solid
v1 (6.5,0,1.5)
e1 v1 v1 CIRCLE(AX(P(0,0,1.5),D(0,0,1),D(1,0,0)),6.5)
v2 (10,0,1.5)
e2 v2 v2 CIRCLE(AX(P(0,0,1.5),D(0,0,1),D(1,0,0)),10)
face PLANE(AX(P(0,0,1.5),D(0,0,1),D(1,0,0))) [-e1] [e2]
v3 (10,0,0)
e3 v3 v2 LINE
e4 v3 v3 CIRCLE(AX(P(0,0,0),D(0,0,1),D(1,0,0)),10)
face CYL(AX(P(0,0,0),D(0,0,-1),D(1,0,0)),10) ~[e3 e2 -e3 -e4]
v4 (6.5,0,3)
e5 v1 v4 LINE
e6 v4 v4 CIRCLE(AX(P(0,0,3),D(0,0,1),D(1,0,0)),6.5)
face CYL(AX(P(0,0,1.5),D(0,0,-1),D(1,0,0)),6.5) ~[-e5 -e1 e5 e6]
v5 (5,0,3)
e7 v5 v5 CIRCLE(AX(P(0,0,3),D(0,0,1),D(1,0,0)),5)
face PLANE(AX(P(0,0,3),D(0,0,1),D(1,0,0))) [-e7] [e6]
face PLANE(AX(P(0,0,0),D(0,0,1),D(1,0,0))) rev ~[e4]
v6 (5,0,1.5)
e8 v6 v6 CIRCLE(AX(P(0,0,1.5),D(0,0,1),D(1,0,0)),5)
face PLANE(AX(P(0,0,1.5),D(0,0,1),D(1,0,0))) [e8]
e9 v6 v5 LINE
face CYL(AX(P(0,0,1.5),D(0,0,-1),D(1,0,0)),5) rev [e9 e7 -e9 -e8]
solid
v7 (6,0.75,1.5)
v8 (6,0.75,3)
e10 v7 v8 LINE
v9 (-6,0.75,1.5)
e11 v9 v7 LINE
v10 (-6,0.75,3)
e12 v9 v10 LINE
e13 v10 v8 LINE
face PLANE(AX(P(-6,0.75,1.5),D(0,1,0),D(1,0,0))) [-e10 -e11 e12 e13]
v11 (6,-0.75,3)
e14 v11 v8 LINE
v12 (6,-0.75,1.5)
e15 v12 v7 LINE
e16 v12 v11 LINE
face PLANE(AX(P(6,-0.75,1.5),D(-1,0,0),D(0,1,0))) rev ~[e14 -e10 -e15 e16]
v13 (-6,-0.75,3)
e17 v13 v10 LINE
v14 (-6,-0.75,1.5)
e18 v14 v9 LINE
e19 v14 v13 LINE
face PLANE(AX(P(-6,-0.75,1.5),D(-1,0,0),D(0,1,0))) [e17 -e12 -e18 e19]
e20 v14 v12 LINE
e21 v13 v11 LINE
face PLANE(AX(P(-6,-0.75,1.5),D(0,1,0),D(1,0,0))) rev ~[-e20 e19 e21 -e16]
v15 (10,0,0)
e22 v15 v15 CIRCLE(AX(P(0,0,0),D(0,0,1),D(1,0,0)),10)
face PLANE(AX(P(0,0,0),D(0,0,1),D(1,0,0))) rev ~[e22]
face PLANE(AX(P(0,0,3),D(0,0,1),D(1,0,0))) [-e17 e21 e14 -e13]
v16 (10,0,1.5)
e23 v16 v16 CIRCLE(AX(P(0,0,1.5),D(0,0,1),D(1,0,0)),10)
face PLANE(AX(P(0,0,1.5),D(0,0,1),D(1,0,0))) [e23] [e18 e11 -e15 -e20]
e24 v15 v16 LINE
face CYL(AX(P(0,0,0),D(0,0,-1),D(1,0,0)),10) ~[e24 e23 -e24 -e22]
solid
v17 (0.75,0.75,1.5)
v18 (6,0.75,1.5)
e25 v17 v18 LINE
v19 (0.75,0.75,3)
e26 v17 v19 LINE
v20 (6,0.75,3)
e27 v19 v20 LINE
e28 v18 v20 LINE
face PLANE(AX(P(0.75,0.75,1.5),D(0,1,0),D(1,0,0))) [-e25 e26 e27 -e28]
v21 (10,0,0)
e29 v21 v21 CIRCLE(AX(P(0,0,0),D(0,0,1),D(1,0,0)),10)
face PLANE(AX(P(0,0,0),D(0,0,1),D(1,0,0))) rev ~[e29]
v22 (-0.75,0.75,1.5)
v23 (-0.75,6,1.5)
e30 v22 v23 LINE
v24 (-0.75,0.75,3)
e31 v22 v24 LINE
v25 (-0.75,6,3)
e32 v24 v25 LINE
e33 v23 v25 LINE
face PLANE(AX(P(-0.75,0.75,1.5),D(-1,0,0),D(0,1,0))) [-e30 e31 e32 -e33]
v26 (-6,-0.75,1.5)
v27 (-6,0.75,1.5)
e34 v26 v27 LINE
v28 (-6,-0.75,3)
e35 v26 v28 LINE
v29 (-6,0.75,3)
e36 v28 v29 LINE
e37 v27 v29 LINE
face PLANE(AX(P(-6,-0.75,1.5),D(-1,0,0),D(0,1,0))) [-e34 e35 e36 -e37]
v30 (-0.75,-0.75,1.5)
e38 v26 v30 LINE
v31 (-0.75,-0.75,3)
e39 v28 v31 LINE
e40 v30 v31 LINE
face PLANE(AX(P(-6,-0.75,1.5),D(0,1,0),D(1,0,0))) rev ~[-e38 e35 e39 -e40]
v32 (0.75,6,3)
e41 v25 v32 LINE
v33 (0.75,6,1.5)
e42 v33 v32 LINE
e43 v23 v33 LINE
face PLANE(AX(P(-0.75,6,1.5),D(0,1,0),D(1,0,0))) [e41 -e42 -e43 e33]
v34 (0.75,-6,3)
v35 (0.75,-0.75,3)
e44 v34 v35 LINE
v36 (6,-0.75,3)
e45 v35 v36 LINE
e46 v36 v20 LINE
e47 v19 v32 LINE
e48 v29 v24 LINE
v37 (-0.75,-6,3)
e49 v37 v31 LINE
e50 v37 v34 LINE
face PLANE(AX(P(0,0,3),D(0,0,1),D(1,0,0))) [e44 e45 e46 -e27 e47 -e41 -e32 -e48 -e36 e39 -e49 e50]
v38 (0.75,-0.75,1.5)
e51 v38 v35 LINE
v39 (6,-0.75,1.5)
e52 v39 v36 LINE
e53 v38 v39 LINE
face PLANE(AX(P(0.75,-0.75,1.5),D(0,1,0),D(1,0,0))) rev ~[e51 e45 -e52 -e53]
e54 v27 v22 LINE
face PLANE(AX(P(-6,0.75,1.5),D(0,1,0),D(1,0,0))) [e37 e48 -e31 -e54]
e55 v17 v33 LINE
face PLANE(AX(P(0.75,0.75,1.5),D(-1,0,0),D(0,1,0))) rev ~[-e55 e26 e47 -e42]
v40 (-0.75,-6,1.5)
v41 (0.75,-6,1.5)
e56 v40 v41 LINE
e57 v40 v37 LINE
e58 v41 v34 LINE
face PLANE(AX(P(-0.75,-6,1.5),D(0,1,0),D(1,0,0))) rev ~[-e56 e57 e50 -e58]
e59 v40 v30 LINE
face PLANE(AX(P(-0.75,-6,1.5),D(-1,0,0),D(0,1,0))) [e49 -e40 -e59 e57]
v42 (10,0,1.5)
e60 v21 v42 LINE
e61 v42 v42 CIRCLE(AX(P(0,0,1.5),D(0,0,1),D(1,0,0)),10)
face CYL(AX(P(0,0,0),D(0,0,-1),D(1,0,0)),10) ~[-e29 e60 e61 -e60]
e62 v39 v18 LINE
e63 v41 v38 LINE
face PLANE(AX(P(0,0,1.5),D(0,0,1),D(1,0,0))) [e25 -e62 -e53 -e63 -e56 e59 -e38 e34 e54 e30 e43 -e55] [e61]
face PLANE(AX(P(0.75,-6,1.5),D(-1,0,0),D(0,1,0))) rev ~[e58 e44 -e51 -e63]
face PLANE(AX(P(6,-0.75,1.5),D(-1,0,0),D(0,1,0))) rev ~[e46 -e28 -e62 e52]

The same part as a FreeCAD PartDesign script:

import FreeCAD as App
import Part
import Sketcher

V = App.Vector

doc = App.newDocument("Part")
body = doc.addObject("PartDesign::Body", "Body")

# Sketch on XY plane
sketch1 = body.newObject("Sketcher::SketchObject", "Sketch")
sketch1.AttachmentSupport = (doc.getObject("XY_Plane"), [""])
sketch1.MapMode = "FlatFace"
sketch1.addGeometry(Part.Circle(V(0, 0, 0), V(0, 0, 1), 10), False)
sketch1.addConstraint([
    Sketcher.Constraint("Coincident", 0, 3, -1, 1),
    Sketcher.Constraint("Diameter", 0, 20.0),
])
pad1 = body.newObject("PartDesign::Pad", "Pad")
pad1.Profile = sketch1
pad1.Length = 1.5

# Sketch on XY plane
sketch2 = body.newObject("Sketcher::SketchObject", "Sketch001")
sketch2.AttachmentSupport = (doc.getObject("XY_Plane"), [""])
sketch2.MapMode = "FlatFace"
sketch2.AttachmentOffset = App.Placement(V(0, 0, 1.5), App.Rotation())
sketch2.addGeometry([
    Part.LineSegment(V(-6, 0.75, 0), V(-6, -0.75, 0)),  # 0
    Part.LineSegment(V(-6, -0.75, 0), V(-0.75, -0.75, 0)),  # 1
    Part.LineSegment(V(-0.75, -0.75, 0), V(-0.75, -6, 0)),  # 2
    Part.LineSegment(V(-0.75, -6, 0), V(0.75, -6, 0)),  # 3
    Part.LineSegment(V(0.75, -6, 0), V(0.75, -0.75, 0)),  # 4
    Part.LineSegment(V(0.75, -0.75, 0), V(6, -0.75, 0)),  # 5
    Part.LineSegment(V(6, -0.75, 0), V(6, 0.75, 0)),  # 6
    Part.LineSegment(V(6, 0.75, 0), V(0.75, 0.75, 0)),  # 7
    Part.LineSegment(V(0.75, 0.75, 0), V(0.75, 6, 0)),  # 8
    Part.LineSegment(V(0.75, 6, 0), V(-0.75, 6, 0)),  # 9
    Part.LineSegment(V(-0.75, 6, 0), V(-0.75, 0.75, 0)),  # 10
    Part.LineSegment(V(-0.75, 0.75, 0), V(-6, 0.75, 0)),  # 11
], False)
sketch2.addConstraint([
    Sketcher.Constraint("Coincident", 0, 2, 1, 1),
    Sketcher.Constraint("Coincident", 1, 2, 2, 1),
    Sketcher.Constraint("Coincident", 2, 2, 3, 1),
    Sketcher.Constraint("Coincident", 3, 2, 4, 1),
    Sketcher.Constraint("Coincident", 4, 2, 5, 1),
    Sketcher.Constraint("Coincident", 5, 2, 6, 1),
    Sketcher.Constraint("Coincident", 6, 2, 7, 1),
    Sketcher.Constraint("Coincident", 7, 2, 8, 1),
    Sketcher.Constraint("Coincident", 8, 2, 9, 1),
    Sketcher.Constraint("Coincident", 9, 2, 10, 1),
    Sketcher.Constraint("Coincident", 10, 2, 11, 1),
    Sketcher.Constraint("Coincident", 11, 2, 0, 1),
    Sketcher.Constraint("Vertical", 0),
    Sketcher.Constraint("Horizontal", 1),
    Sketcher.Constraint("Vertical", 2),
    Sketcher.Constraint("Horizontal", 3),
    Sketcher.Constraint("Vertical", 4),
    Sketcher.Constraint("Horizontal", 5),
    Sketcher.Constraint("Vertical", 6),
    Sketcher.Constraint("Horizontal", 7),
    Sketcher.Constraint("Vertical", 8),
    Sketcher.Constraint("Horizontal", 9),
    Sketcher.Constraint("Vertical", 10),
    Sketcher.Constraint("Horizontal", 11),
    Sketcher.Constraint("Symmetric", 0, 2, 6, 2, -1, 1),
    Sketcher.Constraint("Symmetric", 2, 2, 8, 2, -1, 1),
    Sketcher.Constraint("Symmetric", 4, 2, 10, 2, -1, 1),
    Sketcher.Constraint("Symmetric", 1, 2, 4, 2, -2),
    Sketcher.Constraint("Equal", 9, 0),
    Sketcher.Constraint("Equal", 11, 2),
    Sketcher.Constraint("DistanceX", 3, 1, 3, 2, 1.5),
    Sketcher.Constraint("DistanceX", 0, 2, -1, 1, 6.0),
])
pad2 = body.newObject("PartDesign::Pad", "Pad001")
pad2.Profile = sketch2
pad2.Length = 1.5
body2 = doc.addObject("PartDesign::Body", "Body001")

# Sketch on XY plane
sketch3 = body2.newObject("Sketcher::SketchObject", "Sketch002")
sketch3.AttachmentSupport = (doc.getObject("XY_Plane001"), [""])
sketch3.MapMode = "FlatFace"
sketch3.addGeometry(Part.Circle(V(0, 0, 0), V(0, 0, 1), 10), False)
sketch3.addConstraint([
    Sketcher.Constraint("Coincident", 0, 3, -1, 1),
    Sketcher.Constraint("Diameter", 0, 20.0),
])
pad3 = body2.newObject("PartDesign::Pad", "Pad002")
pad3.Profile = sketch3
pad3.Length = 1.5

# Sketch on XY plane
sketch4 = body2.newObject("Sketcher::SketchObject", "Sketch003")
sketch4.AttachmentSupport = (doc.getObject("XY_Plane001"), [""])
sketch4.MapMode = "FlatFace"
sketch4.AttachmentOffset = App.Placement(V(0, 0, 1.5), App.Rotation())
sketch4.addGeometry([
    Part.LineSegment(V(-6, 0.75, 0), V(-6, -0.75, 0)),
    Part.LineSegment(V(-6, -0.75, 0), V(6, -0.75, 0)),
    Part.LineSegment(V(6, -0.75, 0), V(6, 0.75, 0)),
    Part.LineSegment(V(6, 0.75, 0), V(-6, 0.75, 0)),
], False)
sketch4.addConstraint([
    Sketcher.Constraint("Coincident", 0, 2, 1, 1),
    Sketcher.Constraint("Coincident", 1, 2, 2, 1),
    Sketcher.Constraint("Coincident", 2, 2, 3, 1),
    Sketcher.Constraint("Coincident", 3, 2, 0, 1),
    Sketcher.Constraint("Vertical", 0),
    Sketcher.Constraint("Horizontal", 1),
    Sketcher.Constraint("Vertical", 2),
    Sketcher.Constraint("Horizontal", 3),
    Sketcher.Constraint("Symmetric", 0, 2, 2, 2, -1, 1),
    Sketcher.Constraint("DistanceX", 1, 1, 1, 2, 12.0),
    Sketcher.Constraint("DistanceY", 0, 2, 0, 1, 1.5),
])
pad4 = body2.newObject("PartDesign::Pad", "Pad003")
pad4.Profile = sketch4
pad4.Length = 1.5
body3 = doc.addObject("PartDesign::Body", "Body002")

# Sketch on XY plane
sketch5 = body3.newObject("Sketcher::SketchObject", "Sketch004")
sketch5.AttachmentSupport = (doc.getObject("XY_Plane002"), [""])
sketch5.MapMode = "FlatFace"
sketch5.addGeometry(Part.Circle(V(0, 0, 0), V(0, 0, 1), 10), False)
sketch5.addConstraint([
    Sketcher.Constraint("Coincident", 0, 3, -1, 1),
    Sketcher.Constraint("Diameter", 0, 20.0),
])
pad5 = body3.newObject("PartDesign::Pad", "Pad004")
pad5.Profile = sketch5
pad5.Length = 1.5

# Sketch on XY plane
sketch6 = body3.newObject("Sketcher::SketchObject", "Sketch005")
sketch6.AttachmentSupport = (doc.getObject("XY_Plane002"), [""])
sketch6.MapMode = "FlatFace"
sketch6.AttachmentOffset = App.Placement(V(0, 0, 1.5), App.Rotation())
sketch6.addGeometry([
    Part.Circle(V(0, 0, 0), V(0, 0, 1), 6.5),
    Part.Circle(V(0, 0, 0), V(0, 0, 1), 5),
], False)
sketch6.addConstraint([
    Sketcher.Constraint("Coincident", 0, 3, -1, 1),
    Sketcher.Constraint("Coincident", 1, 3, -1, 1),
    Sketcher.Constraint("Diameter", 0, 13.0),
    Sketcher.Constraint("Diameter", 1, 10.0),
])
pad6 = body3.newObject("PartDesign::Pad", "Pad005")
pad6.Profile = sketch6
pad6.Length = 1.5

doc.recompute()
